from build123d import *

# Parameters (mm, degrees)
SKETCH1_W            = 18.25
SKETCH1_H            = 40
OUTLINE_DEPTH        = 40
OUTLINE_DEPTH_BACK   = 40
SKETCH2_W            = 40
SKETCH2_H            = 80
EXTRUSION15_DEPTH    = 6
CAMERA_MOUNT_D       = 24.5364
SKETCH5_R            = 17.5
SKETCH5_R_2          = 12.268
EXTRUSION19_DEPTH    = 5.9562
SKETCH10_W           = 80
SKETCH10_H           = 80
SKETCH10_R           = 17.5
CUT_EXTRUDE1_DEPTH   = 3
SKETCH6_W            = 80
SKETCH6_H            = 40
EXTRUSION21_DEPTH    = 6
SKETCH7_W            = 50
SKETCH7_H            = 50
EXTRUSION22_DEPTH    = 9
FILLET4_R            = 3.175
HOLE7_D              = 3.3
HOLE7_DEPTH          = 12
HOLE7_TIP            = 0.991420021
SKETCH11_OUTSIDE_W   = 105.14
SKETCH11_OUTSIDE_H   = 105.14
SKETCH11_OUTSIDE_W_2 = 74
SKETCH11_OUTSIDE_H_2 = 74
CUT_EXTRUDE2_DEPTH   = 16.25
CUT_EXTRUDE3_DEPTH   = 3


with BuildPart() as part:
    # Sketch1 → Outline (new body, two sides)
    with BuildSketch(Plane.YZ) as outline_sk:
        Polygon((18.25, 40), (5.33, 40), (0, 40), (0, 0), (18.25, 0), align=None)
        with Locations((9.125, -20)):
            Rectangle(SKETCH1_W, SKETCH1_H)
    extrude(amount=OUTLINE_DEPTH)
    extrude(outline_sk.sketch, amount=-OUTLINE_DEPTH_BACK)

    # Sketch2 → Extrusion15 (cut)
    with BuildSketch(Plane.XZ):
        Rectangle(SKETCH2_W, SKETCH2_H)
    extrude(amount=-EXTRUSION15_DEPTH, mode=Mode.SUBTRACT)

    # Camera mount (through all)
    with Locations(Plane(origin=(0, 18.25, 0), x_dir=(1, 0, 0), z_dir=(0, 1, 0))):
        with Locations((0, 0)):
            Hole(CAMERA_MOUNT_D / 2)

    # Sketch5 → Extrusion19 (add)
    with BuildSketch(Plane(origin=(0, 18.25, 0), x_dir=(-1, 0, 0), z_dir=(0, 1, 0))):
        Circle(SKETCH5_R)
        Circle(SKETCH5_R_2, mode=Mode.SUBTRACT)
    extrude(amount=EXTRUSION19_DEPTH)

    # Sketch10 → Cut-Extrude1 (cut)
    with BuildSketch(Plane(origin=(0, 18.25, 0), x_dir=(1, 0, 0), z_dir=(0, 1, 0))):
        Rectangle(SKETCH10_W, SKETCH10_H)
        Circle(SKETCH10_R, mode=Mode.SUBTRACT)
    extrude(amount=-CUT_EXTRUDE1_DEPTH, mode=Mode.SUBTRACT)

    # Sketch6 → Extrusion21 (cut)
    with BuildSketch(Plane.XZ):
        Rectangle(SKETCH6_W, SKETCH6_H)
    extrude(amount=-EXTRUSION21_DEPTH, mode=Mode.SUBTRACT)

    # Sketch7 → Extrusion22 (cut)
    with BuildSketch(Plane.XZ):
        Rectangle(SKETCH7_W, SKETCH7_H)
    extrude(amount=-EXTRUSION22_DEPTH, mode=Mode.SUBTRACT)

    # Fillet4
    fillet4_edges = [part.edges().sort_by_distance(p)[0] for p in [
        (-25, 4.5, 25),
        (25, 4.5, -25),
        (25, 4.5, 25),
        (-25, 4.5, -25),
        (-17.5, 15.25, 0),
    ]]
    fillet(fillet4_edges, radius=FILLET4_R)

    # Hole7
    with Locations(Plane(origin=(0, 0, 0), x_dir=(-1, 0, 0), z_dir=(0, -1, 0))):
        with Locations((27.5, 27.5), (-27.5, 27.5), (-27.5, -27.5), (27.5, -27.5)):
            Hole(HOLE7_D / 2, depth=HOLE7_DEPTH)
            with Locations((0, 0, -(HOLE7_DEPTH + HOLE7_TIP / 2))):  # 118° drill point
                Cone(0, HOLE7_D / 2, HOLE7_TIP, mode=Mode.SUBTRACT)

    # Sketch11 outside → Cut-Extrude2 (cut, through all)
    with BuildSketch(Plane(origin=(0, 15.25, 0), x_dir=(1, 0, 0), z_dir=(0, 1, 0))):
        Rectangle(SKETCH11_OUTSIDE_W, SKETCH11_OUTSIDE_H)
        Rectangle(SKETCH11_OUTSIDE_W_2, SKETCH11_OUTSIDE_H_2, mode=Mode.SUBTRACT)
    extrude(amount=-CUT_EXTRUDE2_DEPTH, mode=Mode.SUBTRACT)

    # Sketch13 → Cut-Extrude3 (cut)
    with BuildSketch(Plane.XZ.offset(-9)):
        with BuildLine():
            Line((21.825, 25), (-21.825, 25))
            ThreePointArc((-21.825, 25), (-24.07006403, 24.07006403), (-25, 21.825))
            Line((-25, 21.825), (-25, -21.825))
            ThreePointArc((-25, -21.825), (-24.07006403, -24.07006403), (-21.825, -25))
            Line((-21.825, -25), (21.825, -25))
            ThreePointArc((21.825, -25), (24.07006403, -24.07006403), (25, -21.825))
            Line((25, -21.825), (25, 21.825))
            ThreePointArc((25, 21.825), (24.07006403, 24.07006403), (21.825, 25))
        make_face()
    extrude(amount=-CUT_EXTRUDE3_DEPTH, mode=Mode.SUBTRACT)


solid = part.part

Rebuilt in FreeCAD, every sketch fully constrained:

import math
import FreeCAD as App
import Part
import Sketcher


def edges_at(feature, points):
    """Names of the edges that pass closest to the given points."""
    edges = feature.Shape.Edges
    near = lambda p: min(range(len(edges)), key=lambda i: edges[i].distToShape(Part.Vertex(*p))[0])
    return sorted({f"Edge{near(p) + 1}" for p in points})

doc = App.newDocument("Part")
body = doc.addObject("PartDesign::Body", "Body")

sketch1 = body.newObject("Sketcher::SketchObject", "Sketch")
sketch1.AttachmentSupport = (doc.getObject("YZ_Plane"), [""])
sketch1.MapMode = "FlatFace"
sketch1.addGeometry(Part.LineSegment(App.Vector(18, 40, 0), App.Vector(0, 40, 0)), False)
sketch1.addGeometry(Part.LineSegment(App.Vector(0, 40, 0), App.Vector(0, -40, 0)), False)
sketch1.addGeometry(Part.LineSegment(App.Vector(0, -40, 0), App.Vector(18, -40, 0)), False)
sketch1.addGeometry(Part.LineSegment(App.Vector(18, -40, 0), App.Vector(18, 40, 0)), False)
sketch1.addConstraint(Sketcher.Constraint("Coincident", 0, 2, 1, 1))
sketch1.addConstraint(Sketcher.Constraint("Coincident", 1, 2, 2, 1))
sketch1.addConstraint(Sketcher.Constraint("Coincident", 2, 2, 3, 1))
sketch1.addConstraint(Sketcher.Constraint("Coincident", 3, 2, 0, 1))
sketch1.addConstraint(Sketcher.Constraint("Horizontal", 0))
sketch1.addConstraint(Sketcher.Constraint("Vertical", 1))
sketch1.addConstraint(Sketcher.Constraint("Horizontal", 2))
sketch1.addConstraint(Sketcher.Constraint("Vertical", 3))
sketch1.addConstraint(Sketcher.Constraint("Symmetric", 0, 2, 1, 2, -1, 1))
sketch1.addConstraint(Sketcher.Constraint("DistanceY", 1, 2, 1, 1, 80.0))
sketch1.addConstraint(Sketcher.Constraint("DistanceX", 0, 2, 0, 1, 18.25))
pad1 = body.newObject("PartDesign::Pad", "Pad")
pad1.Profile = sketch1
pad1.Type = "TwoLengths"
pad1.Length = 40
pad1.Length2 = 40

sketch2 = body.newObject("Sketcher::SketchObject", "Sketch001")
sketch2.AttachmentSupport = (doc.getObject("XZ_Plane"), [""])
sketch2.MapMode = "FlatFace"
sketch2.addGeometry(Part.LineSegment(App.Vector(-20, 40, 0), App.Vector(-20, -40, 0)), False)
sketch2.addGeometry(Part.LineSegment(App.Vector(-20, -40, 0), App.Vector(20, -40, 0)), False)
sketch2.addGeometry(Part.LineSegment(App.Vector(20, -40, 0), App.Vector(20, 40, 0)), False)
sketch2.addGeometry(Part.LineSegment(App.Vector(20, 40, 0), App.Vector(-20, 40, 0)), False)
sketch2.addConstraint(Sketcher.Constraint("Coincident", 0, 2, 1, 1))
sketch2.addConstraint(Sketcher.Constraint("Coincident", 1, 2, 2, 1))
sketch2.addConstraint(Sketcher.Constraint("Coincident", 2, 2, 3, 1))
sketch2.addConstraint(Sketcher.Constraint("Coincident", 3, 2, 0, 1))
sketch2.addConstraint(Sketcher.Constraint("Vertical", 0))
sketch2.addConstraint(Sketcher.Constraint("Horizontal", 1))
sketch2.addConstraint(Sketcher.Constraint("Vertical", 2))
sketch2.addConstraint(Sketcher.Constraint("Horizontal", 3))
sketch2.addConstraint(Sketcher.Constraint("Symmetric", 0, 2, 2, 2, -1, 1))
sketch2.addConstraint(Sketcher.Constraint("DistanceX", 1, 1, 1, 2, 40.0))
sketch2.addConstraint(Sketcher.Constraint("DistanceY", 0, 2, 0, 1, 80.0))
pocket1 = body.newObject("PartDesign::Pocket", "Pocket")
pocket1.Profile = sketch2
pocket1.Length = 6

sketch3 = body.newObject("Sketcher::SketchObject", "Sketch002")
sketch3.AttachmentSupport = (doc.getObject("XZ_Plane"), [""])
sketch3.MapMode = "FlatFace"
sketch3.AttachmentOffset = App.Placement(App.Vector(0, 0, -18.25), App.Rotation())
sketch3.addGeometry(Part.Circle(App.Vector(0, 0, 0), App.Vector(0, 0, 1), 12), False)
sketch3.addConstraint(Sketcher.Constraint("Coincident", 0, 3, -1, 1))
sketch3.addConstraint(Sketcher.Constraint("Diameter", 0, 24.5364))
doc.recompute()
hole = body.newObject("PartDesign::Hole", "Hole")
hole.Profile = sketch3
hole.ThreadType = "None"
hole.Diameter = 24.5364
hole.DepthType = "ThroughAll"
hole.Reversed = True

sketch4 = body.newObject("Sketcher::SketchObject", "Sketch003")
sketch4.AttachmentSupport = (doc.getObject("XZ_Plane"), [""])
sketch4.MapMode = "FlatFace"
sketch4.AttachmentOffset = App.Placement(App.Vector(0, 0, -18.25), App.Rotation())
sketch4.addGeometry(Part.Circle(App.Vector(0, 0, 0), App.Vector(0, 0, 1), 18), False)
sketch4.addGeometry(Part.Circle(App.Vector(0, 0, 0), App.Vector(0, 0, 1), 12), False)
sketch4.addConstraint(Sketcher.Constraint("Coincident", 0, 3, -1, 1))
sketch4.addConstraint(Sketcher.Constraint("Coincident", 1, 3, -1, 1))
sketch4.addConstraint(Sketcher.Constraint("Diameter", 0, 35.0))
sketch4.addConstraint(Sketcher.Constraint("Diameter", 1, 24.536))
pad2 = body.newObject("PartDesign::Pad", "Pad001")
pad2.Profile = sketch4
pad2.Length = 5.9562
pad2.Reversed = True

sketch5 = body.newObject("Sketcher::SketchObject", "Sketch004")
sketch5.AttachmentSupport = (doc.getObject("XZ_Plane"), [""])
sketch5.MapMode = "FlatFace"
sketch5.AttachmentOffset = App.Placement(App.Vector(0, 0, -18.25), App.Rotation())
sketch5.addGeometry(Part.LineSegment(App.Vector(-40, -40, 0), App.Vector(-40, 40, 0)), False)
sketch5.addGeometry(Part.LineSegment(App.Vector(-40, 40, 0), App.Vector(40, 40, 0)), False)
sketch5.addGeometry(Part.LineSegment(App.Vector(40, 40, 0), App.Vector(40, -40, 0)), False)
sketch5.addGeometry(Part.LineSegment(App.Vector(40, -40, 0), App.Vector(-40, -40, 0)), False)
sketch5.addGeometry(Part.Circle(App.Vector(0, 0, 0), App.Vector(0, 0, 1), 18), False)
sketch5.addConstraint(Sketcher.Constraint("Coincident", 0, 2, 1, 1))
sketch5.addConstraint(Sketcher.Constraint("Coincident", 1, 2, 2, 1))
sketch5.addConstraint(Sketcher.Constraint("Coincident", 2, 2, 3, 1))
sketch5.addConstraint(Sketcher.Constraint("Coincident", 3, 2, 0, 1))
sketch5.addConstraint(Sketcher.Constraint("Vertical", 0))
sketch5.addConstraint(Sketcher.Constraint("Horizontal", 1))
sketch5.addConstraint(Sketcher.Constraint("Vertical", 2))
sketch5.addConstraint(Sketcher.Constraint("Horizontal", 3))
sketch5.addConstraint(Sketcher.Constraint("Coincident", 4, 3, -1, 1))
sketch5.addConstraint(Sketcher.Constraint("Symmetric", 0, 2, 2, 2, -1, 1))
sketch5.addConstraint(Sketcher.Constraint("Equal", 3, 0))
sketch5.addConstraint(Sketcher.Constraint("Diameter", 4, 35.0))
sketch5.addConstraint(Sketcher.Constraint("DistanceX", 1, 1, 1, 2, 80.0))
pocket2 = body.newObject("PartDesign::Pocket", "Pocket001")
pocket2.Profile = sketch5
pocket2.Length = 3
pocket2.Reversed = True

sketch6 = body.newObject("Sketcher::SketchObject", "Sketch005")
sketch6.AttachmentSupport = (doc.getObject("XZ_Plane"), [""])
sketch6.MapMode = "FlatFace"
sketch6.addGeometry(Part.LineSegment(App.Vector(-40, 20, 0), App.Vector(-40, -20, 0)), False)
sketch6.addGeometry(Part.LineSegment(App.Vector(-40, -20, 0), App.Vector(40, -20, 0)), False)
sketch6.addGeometry(Part.LineSegment(App.Vector(40, -20, 0), App.Vector(40, 20, 0)), False)
sketch6.addGeometry(Part.LineSegment(App.Vector(40, 20, 0), App.Vector(-40, 20, 0)), False)
sketch6.addConstraint(Sketcher.Constraint("Coincident", 0, 2, 1, 1))
sketch6.addConstraint(Sketcher.Constraint("Coincident", 1, 2, 2, 1))
sketch6.addConstraint(Sketcher.Constraint("Coincident", 2, 2, 3, 1))
sketch6.addConstraint(Sketcher.Constraint("Coincident", 3, 2, 0, 1))
sketch6.addConstraint(Sketcher.Constraint("Vertical", 0))
sketch6.addConstraint(Sketcher.Constraint("Horizontal", 1))
sketch6.addConstraint(Sketcher.Constraint("Vertical", 2))
sketch6.addConstraint(Sketcher.Constraint("Horizontal", 3))
sketch6.addConstraint(Sketcher.Constraint("Symmetric", 0, 2, 2, 2, -1, 1))
sketch6.addConstraint(Sketcher.Constraint("DistanceX", 1, 1, 1, 2, 80.0))
sketch6.addConstraint(Sketcher.Constraint("DistanceY", 0, 2, 0, 1, 40.0))
pocket3 = body.newObject("PartDesign::Pocket", "Pocket002")
pocket3.Profile = sketch6
pocket3.Length = 6

sketch7 = body.newObject("Sketcher::SketchObject", "Sketch006")
sketch7.AttachmentSupport = (doc.getObject("XZ_Plane"), [""])
sketch7.MapMode = "FlatFace"
sketch7.addGeometry(Part.LineSegment(App.Vector(-25, 25, 0), App.Vector(-25, -25, 0)), False)
sketch7.addGeometry(Part.LineSegment(App.Vector(-25, -25, 0), App.Vector(25, -25, 0)), False)
sketch7.addGeometry(Part.LineSegment(App.Vector(25, -25, 0), App.Vector(25, 25, 0)), False)
sketch7.addGeometry(Part.LineSegment(App.Vector(25, 25, 0), App.Vector(-25, 25, 0)), False)
sketch7.addConstraint(Sketcher.Constraint("Coincident", 0, 2, 1, 1))
sketch7.addConstraint(Sketcher.Constraint("Coincident", 1, 2, 2, 1))
sketch7.addConstraint(Sketcher.Constraint("Coincident", 2, 2, 3, 1))
sketch7.addConstraint(Sketcher.Constraint("Coincident", 3, 2, 0, 1))
sketch7.addConstraint(Sketcher.Constraint("Vertical", 0))
sketch7.addConstraint(Sketcher.Constraint("Horizontal", 1))
sketch7.addConstraint(Sketcher.Constraint("Vertical", 2))
sketch7.addConstraint(Sketcher.Constraint("Horizontal", 3))
sketch7.addConstraint(Sketcher.Constraint("Symmetric", 0, 2, 2, 2, -1, 1))
sketch7.addConstraint(Sketcher.Constraint("Equal", 3, 0))
sketch7.addConstraint(Sketcher.Constraint("DistanceX", 1, 1, 1, 2, 50.0))
pocket4 = body.newObject("PartDesign::Pocket", "Pocket003")
pocket4.Profile = sketch7
pocket4.Length = 9
doc.recompute()

fillet = body.newObject("PartDesign::Fillet", "Fillet")
fillet.Base = (pocket4, edges_at(pocket4, [
    (-25, 4.5, 25),
    (25, 4.5, -25),
    (25, 4.5, 25),
    (-25, 4.5, -25),
    (-17.5, 15.25, 0),
]))
fillet.Radius = 3.175

sketch8 = body.newObject("Sketcher::SketchObject", "Sketch007")
sketch8.AttachmentSupport = (doc.getObject("XZ_Plane"), [""])
sketch8.MapMode = "FlatFace"
sketch8.addGeometry(Part.Circle(App.Vector(-27.5, -27.5, 0), App.Vector(0, 0, 1), 1.6), False)
sketch8.addGeometry(Part.Circle(App.Vector(27.5, -27.5, 0), App.Vector(0, 0, 1), 1.6), False)
sketch8.addGeometry(Part.Circle(App.Vector(27.5, 27.5, 0), App.Vector(0, 0, 1), 1.6), False)
sketch8.addGeometry(Part.Circle(App.Vector(-27.5, 27.5, 0), App.Vector(0, 0, 1), 1.6), False)
sketch8.addConstraint(Sketcher.Constraint("Equal", 0, 1))
sketch8.addConstraint(Sketcher.Constraint("Equal", 1, 2))
sketch8.addConstraint(Sketcher.Constraint("Equal", 2, 3))
sketch8.addConstraint(Sketcher.Constraint("Symmetric", 0, 3, 2, 3, -1, 1))
sketch8.addConstraint(Sketcher.Constraint("Symmetric", 1, 3, 3, 3, -1, 1))
sketch8.addConstraint(Sketcher.Constraint("Symmetric", 0, 3, 1, 3, -2))
sketch8.addConstraint(Sketcher.Constraint("Diameter", 0, 3.3))
sketch8.addConstraint(Sketcher.Constraint("DistanceX", 0, 3, 1, 3, 55.0))
sketch8.addConstraint(Sketcher.Constraint("DistanceY", 1, 3, 2, 3, 55.0))
doc.recompute()
hole2 = body.newObject("PartDesign::Hole", "Hole001")
hole2.Profile = sketch8
hole2.ThreadType = "None"
hole2.Diameter = 3.3
hole2.DepthType = "Dimension"
hole2.Depth = 12
hole2.DrillPoint = "Angled"
hole2.DrillPointAngle = 118

sketch9 = body.newObject("Sketcher::SketchObject", "Sketch008")
sketch9.AttachmentSupport = (doc.getObject("XZ_Plane"), [""])
sketch9.MapMode = "FlatFace"
sketch9.AttachmentOffset = App.Placement(App.Vector(0, 0, -15.25), App.Rotation())
sketch9.addGeometry(Part.LineSegment(App.Vector(-53, -53, 0), App.Vector(-53, 53, 0)), False)
sketch9.addGeometry(Part.LineSegment(App.Vector(-53, 53, 0), App.Vector(53, 53, 0)), False)
sketch9.addGeometry(Part.LineSegment(App.Vector(53, 53, 0), App.Vector(53, -53, 0)), False)
sketch9.addGeometry(Part.LineSegment(App.Vector(53, -53, 0), App.Vector(-53, -53, 0)), False)
sketch9.addGeometry(Part.LineSegment(App.Vector(37, 37, 0), App.Vector(-37, 37, 0)), False)
sketch9.addGeometry(Part.LineSegment(App.Vector(-37, 37, 0), App.Vector(-37, -37, 0)), False)
sketch9.addGeometry(Part.LineSegment(App.Vector(-37, -37, 0), App.Vector(37, -37, 0)), False)
sketch9.addGeometry(Part.LineSegment(App.Vector(37, -37, 0), App.Vector(37, 37, 0)), False)
sketch9.addConstraint(Sketcher.Constraint("Coincident", 0, 2, 1, 1))
sketch9.addConstraint(Sketcher.Constraint("Coincident", 1, 2, 2, 1))
sketch9.addConstraint(Sketcher.Constraint("Coincident", 2, 2, 3, 1))
sketch9.addConstraint(Sketcher.Constraint("Coincident", 3, 2, 0, 1))
sketch9.addConstraint(Sketcher.Constraint("Coincident", 4, 2, 5, 1))
sketch9.addConstraint(Sketcher.Constraint("Coincident", 5, 2, 6, 1))
sketch9.addConstraint(Sketcher.Constraint("Coincident", 6, 2, 7, 1))
sketch9.addConstraint(Sketcher.Constraint("Coincident", 7, 2, 4, 1))
sketch9.addConstraint(Sketcher.Constraint("Vertical", 0))
sketch9.addConstraint(Sketcher.Constraint("Horizontal", 1))
sketch9.addConstraint(Sketcher.Constraint("Vertical", 2))
sketch9.addConstraint(Sketcher.Constraint("Horizontal", 3))
sketch9.addConstraint(Sketcher.Constraint("Horizontal", 4))
sketch9.addConstraint(Sketcher.Constraint("Vertical", 5))
sketch9.addConstraint(Sketcher.Constraint("Horizontal", 6))
sketch9.addConstraint(Sketcher.Constraint("Vertical", 7))
sketch9.addConstraint(Sketcher.Constraint("Symmetric", 0, 2, 2, 2, -1, 1))
sketch9.addConstraint(Sketcher.Constraint("Symmetric", 4, 2, 6, 2, -1, 1))
sketch9.addConstraint(Sketcher.Constraint("Equal", 3, 0))
sketch9.addConstraint(Sketcher.Constraint("Equal", 6, 5))
sketch9.addConstraint(Sketcher.Constraint("DistanceX", 4, 2, 4, 1, 74.0))
sketch9.addConstraint(Sketcher.Constraint("DistanceX", 1, 1, 1, 2, 105.14))
pocket5 = body.newObject("PartDesign::Pocket", "Pocket004")
pocket5.Profile = sketch9
pocket5.Type = "ThroughAll"
pocket5.Reversed = True

sketch10 = body.newObject("Sketcher::SketchObject", "Sketch009")
sketch10.AttachmentSupport = (doc.getObject("XZ_Plane"), [""])
sketch10.MapMode = "FlatFace"
sketch10.AttachmentOffset = App.Placement(App.Vector(0, 0, -9), App.Rotation())
sketch10.addGeometry(Part.LineSegment(App.Vector(21.8, 25, 0), App.Vector(-21.8, 25, 0)), False)
sketch10.addGeometry(Part.ArcOfCircle(Part.Circle(App.Vector(-21.8, 21.8, 0), App.Vector(0, 0, 1), 3.2), math.radians(90), math.radians(180)), False)
sketch10.addGeometry(Part.LineSegment(App.Vector(-25, 21.8, 0), App.Vector(-25, -21.8, 0)), False)
sketch10.addGeometry(Part.ArcOfCircle(Part.Circle(App.Vector(-21.8, -21.8, 0), App.Vector(0, 0, 1), 3.2), math.radians(-180), math.radians(-90)), False)
sketch10.addGeometry(Part.LineSegment(App.Vector(-21.8, -25, 0), App.Vector(21.8, -25, 0)), False)
sketch10.addGeometry(Part.ArcOfCircle(Part.Circle(App.Vector(21.8, -21.8, 0), App.Vector(0, 0, 1), 3.2), math.radians(-90), math.radians(0)), False)
sketch10.addGeometry(Part.LineSegment(App.Vector(25, -21.8, 0), App.Vector(25, 21.8, 0)), False)
sketch10.addGeometry(Part.ArcOfCircle(Part.Circle(App.Vector(21.8, 21.8, 0), App.Vector(0, 0, 1), 3.2), math.radians(0), math.radians(90)), False)
sketch10.addConstraint(Sketcher.Constraint("Tangent", 0, 2, 1, 1))
sketch10.addConstraint(Sketcher.Constraint("Tangent", 1, 2, 2, 1))
sketch10.addConstraint(Sketcher.Constraint("Tangent", 2, 2, 3, 1))
sketch10.addConstraint(Sketcher.Constraint("Tangent", 3, 2, 4, 1))
sketch10.addConstraint(Sketcher.Constraint("Tangent", 4, 2, 5, 1))
sketch10.addConstraint(Sketcher.Constraint("Tangent", 5, 2, 6, 1))
sketch10.addConstraint(Sketcher.Constraint("Tangent", 6, 2, 7, 1))
sketch10.addConstraint(Sketcher.Constraint("Tangent", 7, 2, 0, 1))
sketch10.addConstraint(Sketcher.Constraint("Horizontal", 0))
sketch10.addConstraint(Sketcher.Constraint("Vertical", 2))
sketch10.addConstraint(Sketcher.Constraint("Horizontal", 4))
sketch10.addConstraint(Sketcher.Constraint("Vertical", 6))
sketch10.addConstraint(Sketcher.Constraint("Equal", 1, 3))
sketch10.addConstraint(Sketcher.Constraint("Equal", 3, 5))
sketch10.addConstraint(Sketcher.Constraint("Equal", 5, 7))
sketch10.addConstraint(Sketcher.Constraint("Symmetric", 1, 3, 5, 3, -1, 1))
sketch10.addConstraint(Sketcher.Constraint("Equal", 4, 2))
sketch10.addConstraint(Sketcher.Constraint("DistanceY", -1, 1, 0, 2, 25.0))
sketch10.addConstraint(Sketcher.Constraint("Radius", 1, 3.175))
pocket6 = body.newObject("PartDesign::Pocket", "Pocket005")
pocket6.Profile = sketch10
pocket6.Length = 3

doc.recompute()
